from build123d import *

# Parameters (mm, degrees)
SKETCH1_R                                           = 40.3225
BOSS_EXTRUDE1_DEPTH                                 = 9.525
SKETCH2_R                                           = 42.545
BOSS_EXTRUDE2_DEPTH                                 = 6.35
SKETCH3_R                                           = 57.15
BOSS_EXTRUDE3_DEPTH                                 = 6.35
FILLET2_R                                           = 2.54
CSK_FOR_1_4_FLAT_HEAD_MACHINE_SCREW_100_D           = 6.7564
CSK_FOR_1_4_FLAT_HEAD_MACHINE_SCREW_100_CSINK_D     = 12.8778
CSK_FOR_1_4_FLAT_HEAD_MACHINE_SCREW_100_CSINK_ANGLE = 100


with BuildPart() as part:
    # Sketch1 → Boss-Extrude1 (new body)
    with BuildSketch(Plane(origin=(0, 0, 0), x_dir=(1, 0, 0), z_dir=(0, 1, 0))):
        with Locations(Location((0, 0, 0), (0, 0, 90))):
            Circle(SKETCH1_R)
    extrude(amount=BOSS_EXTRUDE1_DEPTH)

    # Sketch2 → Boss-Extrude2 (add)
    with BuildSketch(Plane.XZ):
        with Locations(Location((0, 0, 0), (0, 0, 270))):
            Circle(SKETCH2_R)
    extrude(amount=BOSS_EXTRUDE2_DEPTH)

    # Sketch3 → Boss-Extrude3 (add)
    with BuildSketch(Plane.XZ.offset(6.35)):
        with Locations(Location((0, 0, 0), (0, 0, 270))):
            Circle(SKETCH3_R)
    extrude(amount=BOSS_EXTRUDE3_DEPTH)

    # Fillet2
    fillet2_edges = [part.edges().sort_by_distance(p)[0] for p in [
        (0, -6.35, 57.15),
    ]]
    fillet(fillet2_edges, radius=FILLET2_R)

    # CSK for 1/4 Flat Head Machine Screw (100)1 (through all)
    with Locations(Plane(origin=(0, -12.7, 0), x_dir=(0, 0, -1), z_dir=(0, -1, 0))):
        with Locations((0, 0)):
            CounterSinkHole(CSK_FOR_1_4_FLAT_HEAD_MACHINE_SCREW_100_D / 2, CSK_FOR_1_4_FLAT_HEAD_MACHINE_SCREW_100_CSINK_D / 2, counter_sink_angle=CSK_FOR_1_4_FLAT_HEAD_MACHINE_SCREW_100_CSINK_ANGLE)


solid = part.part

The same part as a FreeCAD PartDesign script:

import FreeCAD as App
import Part
import Sketcher
Q = App.Units.Quantity


def edges_at(feature, points):
    """Names of the edges that pass closest to the given points."""
    edges = feature.Shape.Edges
    near = lambda p: min(range(len(edges)), key=lambda i: edges[i].distToShape(Part.Vertex(*p))[0])
    return sorted({f"Edge{near(p) + 1}" for p in points})

doc = App.newDocument("Part")
body = doc.addObject("PartDesign::Body", "Body")

# Sketch on XZ plane
sketch1 = body.newObject("Sketcher::SketchObject", "Sketch")
sketch1.AttachmentSupport = (doc.getObject("XZ_Plane"), [""])
sketch1.MapMode = "FlatFace"
sketch1.addGeometry(Part.Circle(App.Vector(0, 0, 0), App.Vector(0, 0, 1), 40.3225), False)
sketch1.addConstraint(Sketcher.Constraint("Coincident", 0, 3, -1, 1))
sketch1.addConstraint(Sketcher.Constraint("Diameter", 0, Q("3.175 in")))
pad1 = body.newObject("PartDesign::Pad", "Pad")
pad1.Profile = sketch1
pad1.Length = Q("0.375 in")
pad1.Reversed = True

# Sketch on XZ plane
sketch2 = body.newObject("Sketcher::SketchObject", "Sketch001")
sketch2.AttachmentSupport = (doc.getObject("XZ_Plane"), [""])
sketch2.MapMode = "FlatFace"
sketch2.addGeometry(Part.Circle(App.Vector(0, 0, 0), App.Vector(0, 0, 1), 42.545), False)
sketch2.addConstraint(Sketcher.Constraint("Coincident", 0, 3, -1, 1))
sketch2.addConstraint(Sketcher.Constraint("Diameter", 0, Q("3.35 in")))
pad2 = body.newObject("PartDesign::Pad", "Pad001")
pad2.Profile = sketch2
pad2.Length = Q("0.25 in")

# Sketch on XZ plane
sketch3 = body.newObject("Sketcher::SketchObject", "Sketch002")
sketch3.AttachmentSupport = (doc.getObject("XZ_Plane"), [""])
sketch3.MapMode = "FlatFace"
sketch3.AttachmentOffset = App.Placement(App.Vector(0, 0, 0.25 * 25.4), App.Rotation())
sketch3.addGeometry(Part.Circle(App.Vector(0, 0, 0), App.Vector(0, 0, 1), 57.15), False)
sketch3.addConstraint(Sketcher.Constraint("Coincident", 0, 3, -1, 1))
sketch3.addConstraint(Sketcher.Constraint("Diameter", 0, Q("4.5 in")))
pad3 = body.newObject("PartDesign::Pad", "Pad002")
pad3.Profile = sketch3
pad3.Length = Q("0.25 in")
doc.recompute()

fillet = body.newObject("PartDesign::Fillet", "Fillet")
fillet.Base = (pad3, edges_at(pad3, [(0, -6.35, 57.15)]))
fillet.Radius = Q("0.1 in")

# Sketch on XZ plane
sketch4 = body.newObject("Sketcher::SketchObject", "Sketch003")
sketch4.AttachmentSupport = (doc.getObject("XZ_Plane"), [""])
sketch4.MapMode = "FlatFace"
sketch4.AttachmentOffset = App.Placement(App.Vector(0, 0, 0.5 * 25.4), App.Rotation())
sketch4.addGeometry(Part.Circle(App.Vector(0, 0, 0), App.Vector(0, 0, 1), 3.3782), False)
sketch4.addConstraint(Sketcher.Constraint("Coincident", 0, 3, -1, 1))
sketch4.addConstraint(Sketcher.Constraint("Diameter", 0, Q("0.266 in")))
doc.recompute()
hole = body.newObject("PartDesign::Hole", "Hole")
hole.Profile = sketch4
hole.ThreadType = "None"
hole.Diameter = Q("0.266 in")
hole.DepthType = "ThroughAll"
hole.HoleCutType = "Countersink"
hole.HoleCutDiameter = Q("0.507 in")
hole.HoleCutCountersinkAngle = 100

doc.recompute()
